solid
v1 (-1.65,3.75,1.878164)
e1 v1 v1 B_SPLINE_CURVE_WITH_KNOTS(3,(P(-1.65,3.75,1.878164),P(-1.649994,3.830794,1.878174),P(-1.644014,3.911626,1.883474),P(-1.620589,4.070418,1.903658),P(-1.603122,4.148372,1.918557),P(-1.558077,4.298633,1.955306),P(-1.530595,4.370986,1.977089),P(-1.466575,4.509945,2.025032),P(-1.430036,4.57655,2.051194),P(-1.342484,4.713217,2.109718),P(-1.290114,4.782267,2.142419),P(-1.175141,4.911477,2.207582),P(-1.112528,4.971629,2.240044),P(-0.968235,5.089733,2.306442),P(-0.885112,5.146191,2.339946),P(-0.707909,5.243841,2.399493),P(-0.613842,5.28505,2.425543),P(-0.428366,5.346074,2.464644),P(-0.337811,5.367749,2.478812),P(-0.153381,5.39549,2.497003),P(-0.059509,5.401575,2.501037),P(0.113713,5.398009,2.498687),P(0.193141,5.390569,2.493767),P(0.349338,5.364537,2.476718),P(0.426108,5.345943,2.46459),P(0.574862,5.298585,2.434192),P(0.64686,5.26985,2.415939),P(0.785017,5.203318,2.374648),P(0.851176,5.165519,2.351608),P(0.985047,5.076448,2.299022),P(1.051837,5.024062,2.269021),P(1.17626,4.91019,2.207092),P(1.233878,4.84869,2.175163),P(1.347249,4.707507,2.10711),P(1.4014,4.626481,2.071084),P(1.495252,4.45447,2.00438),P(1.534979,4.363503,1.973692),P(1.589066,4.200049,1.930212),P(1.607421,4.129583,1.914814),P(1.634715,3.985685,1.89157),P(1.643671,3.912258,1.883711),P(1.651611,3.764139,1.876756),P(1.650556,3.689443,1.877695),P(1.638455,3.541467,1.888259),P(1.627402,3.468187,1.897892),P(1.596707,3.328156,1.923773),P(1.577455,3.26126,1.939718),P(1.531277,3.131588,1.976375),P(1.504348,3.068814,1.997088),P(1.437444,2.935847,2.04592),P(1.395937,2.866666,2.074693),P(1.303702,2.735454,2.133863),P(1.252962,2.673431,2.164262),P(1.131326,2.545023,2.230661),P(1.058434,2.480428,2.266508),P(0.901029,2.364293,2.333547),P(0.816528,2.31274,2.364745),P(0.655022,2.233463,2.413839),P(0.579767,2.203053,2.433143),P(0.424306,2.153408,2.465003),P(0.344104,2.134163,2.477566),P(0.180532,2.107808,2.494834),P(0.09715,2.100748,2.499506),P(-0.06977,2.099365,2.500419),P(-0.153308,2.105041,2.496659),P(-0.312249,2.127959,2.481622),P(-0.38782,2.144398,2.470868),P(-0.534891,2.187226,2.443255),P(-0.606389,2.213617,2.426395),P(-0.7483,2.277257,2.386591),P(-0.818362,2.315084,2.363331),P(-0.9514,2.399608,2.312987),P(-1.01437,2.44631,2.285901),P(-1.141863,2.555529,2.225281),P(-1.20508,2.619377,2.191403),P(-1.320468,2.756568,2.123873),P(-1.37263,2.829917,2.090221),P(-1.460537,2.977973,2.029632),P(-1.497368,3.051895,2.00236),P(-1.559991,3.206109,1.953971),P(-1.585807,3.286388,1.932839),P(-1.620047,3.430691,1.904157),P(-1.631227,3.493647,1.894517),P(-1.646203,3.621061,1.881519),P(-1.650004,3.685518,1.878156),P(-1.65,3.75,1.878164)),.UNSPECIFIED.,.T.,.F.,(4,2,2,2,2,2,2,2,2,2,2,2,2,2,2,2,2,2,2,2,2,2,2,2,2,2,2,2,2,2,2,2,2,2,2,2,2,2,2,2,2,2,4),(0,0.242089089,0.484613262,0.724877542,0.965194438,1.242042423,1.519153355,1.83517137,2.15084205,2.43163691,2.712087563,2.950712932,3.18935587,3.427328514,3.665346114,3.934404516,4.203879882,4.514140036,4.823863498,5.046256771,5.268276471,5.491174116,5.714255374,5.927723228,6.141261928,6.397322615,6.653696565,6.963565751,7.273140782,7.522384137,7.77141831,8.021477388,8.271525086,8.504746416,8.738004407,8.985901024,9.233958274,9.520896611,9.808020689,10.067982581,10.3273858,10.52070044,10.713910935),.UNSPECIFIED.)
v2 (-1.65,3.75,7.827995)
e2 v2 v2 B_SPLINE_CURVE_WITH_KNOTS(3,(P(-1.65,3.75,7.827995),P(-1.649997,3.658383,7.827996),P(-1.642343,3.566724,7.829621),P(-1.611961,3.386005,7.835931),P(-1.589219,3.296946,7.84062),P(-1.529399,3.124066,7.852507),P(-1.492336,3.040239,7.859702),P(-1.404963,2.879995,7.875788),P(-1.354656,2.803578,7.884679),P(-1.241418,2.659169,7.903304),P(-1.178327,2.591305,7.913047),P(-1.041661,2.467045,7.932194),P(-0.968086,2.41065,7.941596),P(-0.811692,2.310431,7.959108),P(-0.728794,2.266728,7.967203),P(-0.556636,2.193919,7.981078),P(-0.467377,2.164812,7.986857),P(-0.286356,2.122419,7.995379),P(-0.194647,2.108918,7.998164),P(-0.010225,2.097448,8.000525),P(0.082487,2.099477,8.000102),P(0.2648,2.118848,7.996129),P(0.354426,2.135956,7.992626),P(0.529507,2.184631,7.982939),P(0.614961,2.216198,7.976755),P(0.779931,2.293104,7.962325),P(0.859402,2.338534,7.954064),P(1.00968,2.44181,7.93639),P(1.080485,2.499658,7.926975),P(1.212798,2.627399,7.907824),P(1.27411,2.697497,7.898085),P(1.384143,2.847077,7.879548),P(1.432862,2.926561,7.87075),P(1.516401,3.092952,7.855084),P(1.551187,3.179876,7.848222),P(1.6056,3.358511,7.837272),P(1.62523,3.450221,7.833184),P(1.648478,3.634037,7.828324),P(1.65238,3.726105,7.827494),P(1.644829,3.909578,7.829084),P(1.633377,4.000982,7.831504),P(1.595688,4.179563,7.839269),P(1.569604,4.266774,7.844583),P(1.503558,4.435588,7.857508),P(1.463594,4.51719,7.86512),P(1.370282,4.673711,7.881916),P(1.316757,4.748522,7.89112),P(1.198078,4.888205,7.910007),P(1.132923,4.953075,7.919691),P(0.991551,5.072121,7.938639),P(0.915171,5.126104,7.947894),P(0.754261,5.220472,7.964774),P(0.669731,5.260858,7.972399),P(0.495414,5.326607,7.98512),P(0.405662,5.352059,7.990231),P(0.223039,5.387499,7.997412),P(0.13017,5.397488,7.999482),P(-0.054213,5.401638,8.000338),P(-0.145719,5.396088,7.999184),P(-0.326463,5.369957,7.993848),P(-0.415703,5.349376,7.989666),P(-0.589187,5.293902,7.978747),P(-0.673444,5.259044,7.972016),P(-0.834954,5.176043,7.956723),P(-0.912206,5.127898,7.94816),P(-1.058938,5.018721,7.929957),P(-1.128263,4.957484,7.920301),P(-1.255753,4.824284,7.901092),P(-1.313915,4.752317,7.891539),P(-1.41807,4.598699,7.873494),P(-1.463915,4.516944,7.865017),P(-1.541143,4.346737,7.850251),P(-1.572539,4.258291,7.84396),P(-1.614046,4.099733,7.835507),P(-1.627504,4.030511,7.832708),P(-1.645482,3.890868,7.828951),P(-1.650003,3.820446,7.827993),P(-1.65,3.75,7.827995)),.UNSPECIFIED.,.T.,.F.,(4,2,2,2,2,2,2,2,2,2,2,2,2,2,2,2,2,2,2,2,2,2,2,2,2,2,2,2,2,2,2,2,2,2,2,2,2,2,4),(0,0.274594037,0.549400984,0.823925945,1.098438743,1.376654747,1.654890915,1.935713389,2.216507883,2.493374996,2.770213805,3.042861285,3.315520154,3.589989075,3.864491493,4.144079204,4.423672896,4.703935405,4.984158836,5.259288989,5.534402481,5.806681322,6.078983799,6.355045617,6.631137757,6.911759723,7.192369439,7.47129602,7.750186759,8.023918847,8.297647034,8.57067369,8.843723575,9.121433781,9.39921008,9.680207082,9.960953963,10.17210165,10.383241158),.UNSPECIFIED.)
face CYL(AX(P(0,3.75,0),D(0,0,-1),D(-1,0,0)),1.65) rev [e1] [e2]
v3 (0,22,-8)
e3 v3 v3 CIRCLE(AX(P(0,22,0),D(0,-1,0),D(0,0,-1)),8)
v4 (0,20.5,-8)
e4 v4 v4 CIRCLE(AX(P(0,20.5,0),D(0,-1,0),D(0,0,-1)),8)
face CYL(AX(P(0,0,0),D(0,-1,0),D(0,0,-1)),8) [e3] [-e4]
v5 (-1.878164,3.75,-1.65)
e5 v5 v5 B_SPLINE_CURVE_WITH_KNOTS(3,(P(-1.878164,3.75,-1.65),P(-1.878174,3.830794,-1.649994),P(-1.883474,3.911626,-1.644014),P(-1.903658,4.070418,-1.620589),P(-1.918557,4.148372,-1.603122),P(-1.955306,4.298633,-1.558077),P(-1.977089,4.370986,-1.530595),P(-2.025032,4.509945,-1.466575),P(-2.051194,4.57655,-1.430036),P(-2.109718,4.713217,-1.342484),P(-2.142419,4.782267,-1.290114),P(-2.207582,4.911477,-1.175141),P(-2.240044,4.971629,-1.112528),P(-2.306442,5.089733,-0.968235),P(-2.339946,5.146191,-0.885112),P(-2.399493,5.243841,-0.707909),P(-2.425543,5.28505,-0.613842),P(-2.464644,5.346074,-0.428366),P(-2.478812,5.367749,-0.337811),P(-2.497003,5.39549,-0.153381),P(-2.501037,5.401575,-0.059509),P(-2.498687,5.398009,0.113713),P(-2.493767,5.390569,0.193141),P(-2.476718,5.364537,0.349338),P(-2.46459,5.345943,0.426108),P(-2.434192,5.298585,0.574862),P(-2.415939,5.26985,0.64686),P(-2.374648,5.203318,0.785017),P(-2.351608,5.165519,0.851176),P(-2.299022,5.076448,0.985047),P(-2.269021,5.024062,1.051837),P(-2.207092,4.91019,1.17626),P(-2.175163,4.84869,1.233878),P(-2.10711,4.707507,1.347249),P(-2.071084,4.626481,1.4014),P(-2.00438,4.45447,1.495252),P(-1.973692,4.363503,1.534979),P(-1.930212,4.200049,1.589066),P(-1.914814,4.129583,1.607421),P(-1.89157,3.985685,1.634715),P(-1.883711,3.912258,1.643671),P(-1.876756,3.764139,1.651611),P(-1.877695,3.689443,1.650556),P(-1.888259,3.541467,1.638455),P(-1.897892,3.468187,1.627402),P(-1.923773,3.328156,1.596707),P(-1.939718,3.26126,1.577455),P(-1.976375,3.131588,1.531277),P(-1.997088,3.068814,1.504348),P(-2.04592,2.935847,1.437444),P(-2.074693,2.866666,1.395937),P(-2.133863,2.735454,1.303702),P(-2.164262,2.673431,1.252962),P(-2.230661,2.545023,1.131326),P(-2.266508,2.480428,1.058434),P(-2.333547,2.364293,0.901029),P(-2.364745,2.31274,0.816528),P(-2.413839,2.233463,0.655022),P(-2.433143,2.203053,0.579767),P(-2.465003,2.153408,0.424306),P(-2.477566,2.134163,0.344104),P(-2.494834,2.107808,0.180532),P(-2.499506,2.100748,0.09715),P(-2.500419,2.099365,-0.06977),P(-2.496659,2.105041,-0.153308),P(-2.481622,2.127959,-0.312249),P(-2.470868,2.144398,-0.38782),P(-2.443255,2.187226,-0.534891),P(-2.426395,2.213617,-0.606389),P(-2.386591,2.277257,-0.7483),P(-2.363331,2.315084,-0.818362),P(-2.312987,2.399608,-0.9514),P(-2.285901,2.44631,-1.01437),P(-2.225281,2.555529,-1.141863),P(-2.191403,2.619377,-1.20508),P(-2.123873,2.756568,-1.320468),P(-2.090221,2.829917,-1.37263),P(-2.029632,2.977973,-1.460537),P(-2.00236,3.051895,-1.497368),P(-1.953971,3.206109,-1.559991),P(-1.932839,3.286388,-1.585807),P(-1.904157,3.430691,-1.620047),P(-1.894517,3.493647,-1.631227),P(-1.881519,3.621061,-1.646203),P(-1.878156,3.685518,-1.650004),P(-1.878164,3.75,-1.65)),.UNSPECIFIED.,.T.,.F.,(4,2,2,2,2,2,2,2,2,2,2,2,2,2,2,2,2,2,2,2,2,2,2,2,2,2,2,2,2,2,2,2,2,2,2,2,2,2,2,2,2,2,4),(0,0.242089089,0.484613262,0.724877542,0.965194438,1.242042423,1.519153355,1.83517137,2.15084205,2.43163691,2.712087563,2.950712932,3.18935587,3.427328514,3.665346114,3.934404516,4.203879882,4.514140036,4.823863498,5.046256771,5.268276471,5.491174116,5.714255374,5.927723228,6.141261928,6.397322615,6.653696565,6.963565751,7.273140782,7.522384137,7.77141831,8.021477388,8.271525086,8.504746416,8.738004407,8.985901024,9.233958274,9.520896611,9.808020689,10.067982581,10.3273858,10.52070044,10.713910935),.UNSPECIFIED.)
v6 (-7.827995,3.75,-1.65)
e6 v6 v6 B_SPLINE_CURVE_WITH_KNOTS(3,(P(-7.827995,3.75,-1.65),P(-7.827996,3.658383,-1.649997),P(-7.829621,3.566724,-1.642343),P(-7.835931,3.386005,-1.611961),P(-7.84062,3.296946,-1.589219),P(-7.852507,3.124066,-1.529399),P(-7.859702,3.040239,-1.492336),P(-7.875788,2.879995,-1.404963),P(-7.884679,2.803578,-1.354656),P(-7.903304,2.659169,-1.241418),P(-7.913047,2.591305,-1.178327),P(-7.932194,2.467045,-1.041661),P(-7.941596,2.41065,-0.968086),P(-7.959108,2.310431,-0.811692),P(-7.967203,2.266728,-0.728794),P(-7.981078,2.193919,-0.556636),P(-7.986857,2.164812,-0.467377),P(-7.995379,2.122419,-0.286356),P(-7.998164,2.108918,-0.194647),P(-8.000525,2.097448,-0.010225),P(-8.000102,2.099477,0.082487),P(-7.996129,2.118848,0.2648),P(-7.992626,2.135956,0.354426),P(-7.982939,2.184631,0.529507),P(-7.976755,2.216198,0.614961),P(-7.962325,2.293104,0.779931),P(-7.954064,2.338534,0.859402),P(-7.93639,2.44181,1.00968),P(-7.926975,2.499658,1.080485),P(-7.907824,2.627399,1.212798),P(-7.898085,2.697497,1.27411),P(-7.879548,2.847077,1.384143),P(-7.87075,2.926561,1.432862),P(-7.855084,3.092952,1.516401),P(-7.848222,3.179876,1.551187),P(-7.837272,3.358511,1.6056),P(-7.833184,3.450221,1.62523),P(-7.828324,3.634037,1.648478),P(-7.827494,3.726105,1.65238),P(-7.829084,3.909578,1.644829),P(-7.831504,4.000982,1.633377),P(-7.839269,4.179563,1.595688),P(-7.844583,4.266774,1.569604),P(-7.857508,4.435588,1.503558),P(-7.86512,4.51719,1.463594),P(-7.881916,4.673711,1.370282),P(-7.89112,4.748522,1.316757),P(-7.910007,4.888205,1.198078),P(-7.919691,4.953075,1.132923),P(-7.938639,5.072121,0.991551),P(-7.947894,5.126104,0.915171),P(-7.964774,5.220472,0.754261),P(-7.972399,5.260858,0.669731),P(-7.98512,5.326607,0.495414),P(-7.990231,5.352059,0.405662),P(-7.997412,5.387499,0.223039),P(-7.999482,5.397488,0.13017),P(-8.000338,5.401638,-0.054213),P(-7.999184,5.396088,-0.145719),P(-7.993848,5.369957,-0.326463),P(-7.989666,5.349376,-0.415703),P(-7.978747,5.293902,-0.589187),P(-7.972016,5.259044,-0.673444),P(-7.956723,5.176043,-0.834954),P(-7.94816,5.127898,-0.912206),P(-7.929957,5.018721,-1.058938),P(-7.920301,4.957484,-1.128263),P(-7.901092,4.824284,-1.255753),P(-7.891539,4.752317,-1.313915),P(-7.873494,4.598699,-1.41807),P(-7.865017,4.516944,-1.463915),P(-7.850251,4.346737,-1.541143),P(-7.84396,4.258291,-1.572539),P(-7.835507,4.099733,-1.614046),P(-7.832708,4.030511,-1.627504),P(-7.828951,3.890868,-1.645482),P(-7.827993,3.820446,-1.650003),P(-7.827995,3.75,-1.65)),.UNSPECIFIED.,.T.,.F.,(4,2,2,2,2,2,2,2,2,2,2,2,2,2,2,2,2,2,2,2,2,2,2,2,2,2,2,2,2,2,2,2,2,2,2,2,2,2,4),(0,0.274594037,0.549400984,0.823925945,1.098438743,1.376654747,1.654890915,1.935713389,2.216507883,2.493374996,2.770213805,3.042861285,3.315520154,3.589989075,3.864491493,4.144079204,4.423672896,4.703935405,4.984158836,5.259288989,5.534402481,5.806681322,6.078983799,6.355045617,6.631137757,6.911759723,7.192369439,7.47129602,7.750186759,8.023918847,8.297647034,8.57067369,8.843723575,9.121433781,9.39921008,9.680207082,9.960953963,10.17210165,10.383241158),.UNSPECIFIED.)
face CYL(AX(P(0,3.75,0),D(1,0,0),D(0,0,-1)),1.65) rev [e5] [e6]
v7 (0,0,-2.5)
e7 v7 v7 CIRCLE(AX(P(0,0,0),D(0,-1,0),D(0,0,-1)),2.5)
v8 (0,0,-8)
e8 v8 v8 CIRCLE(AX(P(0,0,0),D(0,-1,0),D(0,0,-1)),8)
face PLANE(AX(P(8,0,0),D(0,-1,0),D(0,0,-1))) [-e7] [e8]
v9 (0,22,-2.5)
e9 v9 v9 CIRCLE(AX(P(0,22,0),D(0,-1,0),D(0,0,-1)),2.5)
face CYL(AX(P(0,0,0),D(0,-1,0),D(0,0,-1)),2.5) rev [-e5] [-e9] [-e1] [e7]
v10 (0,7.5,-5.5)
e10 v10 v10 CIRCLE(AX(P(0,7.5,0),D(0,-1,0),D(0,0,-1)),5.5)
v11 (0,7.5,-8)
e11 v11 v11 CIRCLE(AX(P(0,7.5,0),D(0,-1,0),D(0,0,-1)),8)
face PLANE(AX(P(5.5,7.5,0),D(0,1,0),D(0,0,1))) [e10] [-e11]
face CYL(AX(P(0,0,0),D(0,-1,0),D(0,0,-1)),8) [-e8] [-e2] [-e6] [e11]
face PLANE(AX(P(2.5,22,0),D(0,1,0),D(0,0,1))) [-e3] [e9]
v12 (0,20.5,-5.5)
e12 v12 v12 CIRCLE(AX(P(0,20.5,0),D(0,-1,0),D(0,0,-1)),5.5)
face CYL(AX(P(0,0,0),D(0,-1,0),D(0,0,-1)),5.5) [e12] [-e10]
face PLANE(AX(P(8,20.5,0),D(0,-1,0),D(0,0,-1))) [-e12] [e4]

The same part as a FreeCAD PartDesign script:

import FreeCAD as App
import Part
import Sketcher

V = App.Vector

doc = App.newDocument("Part")
params = doc.addObject("Spreadsheet::Sheet", "Params")
for row, (alias, value) in enumerate([
    ("sketch1_height", "13 mm"),
    ("sketch1_height2", "22 mm"),
    ("sketch1_width", "2.5 mm"),
    ("sketch1_width2", "5.5 mm"),
    ("sketch1_height3", "7.5 mm"),
    ("revolution_angle", "360 deg"),
    ("sketch2_width", "1.65 mm"),
    ("groove_angle", "360 deg"),
], start=1):
    params.set(f"A{row}", alias)
    params.set(f"B{row}", "=" + value)
    params.setAlias(f"B{row}", alias)

body = doc.addObject("PartDesign::Body", "Body")

# Sketch on XY plane
sketch1 = body.newObject("Sketcher::SketchObject", "Sketch")
sketch1.AttachmentSupport = (doc.getObject("XY_Plane"), [""])
sketch1.MapMode = "FlatFace"
sketch1.addGeometry([
    Part.LineSegment(V(8, 0, 0), V(8, 7.5, 0)),  # 0
    Part.LineSegment(V(8, 7.5, 0), V(5.5, 7.5, 0)),  # 1
    Part.LineSegment(V(5.5, 7.5, 0), V(5.5, 20.5, 0)),  # 2
    Part.LineSegment(V(5.5, 20.5, 0), V(8, 20.5, 0)),  # 3
    Part.LineSegment(V(8, 20.5, 0), V(8, 22, 0)),  # 4
    Part.LineSegment(V(8, 22, 0), V(2.5, 22, 0)),  # 5
    Part.LineSegment(V(2.5, 22, 0), V(2.5, 0, 0)),  # 6
    Part.LineSegment(V(2.5, 0, 0), V(8, 0, 0)),  # 7
], False)
sketch1.addConstraint([
    Sketcher.Constraint("Coincident", 0, 2, 1, 1),
    Sketcher.Constraint("Coincident", 1, 2, 2, 1),
    Sketcher.Constraint("Coincident", 2, 2, 3, 1),
    Sketcher.Constraint("Coincident", 3, 2, 4, 1),
    Sketcher.Constraint("Coincident", 4, 2, 5, 1),
    Sketcher.Constraint("Coincident", 5, 2, 6, 1),
    Sketcher.Constraint("Coincident", 6, 2, 7, 1),
    Sketcher.Constraint("Coincident", 7, 2, 0, 1),
    Sketcher.Constraint("Vertical", 0),
    Sketcher.Constraint("Horizontal", 1),
    Sketcher.Constraint("Vertical", 2),
    Sketcher.Constraint("Horizontal", 3),
    Sketcher.Constraint("Vertical", 4),
    Sketcher.Constraint("Horizontal", 5),
    Sketcher.Constraint("Vertical", 6),
    Sketcher.Constraint("Horizontal", 7),
    Sketcher.Constraint("PointOnObject", 6, 2, -1),
    Sketcher.Constraint("Vertical", 0, 2, 3, 2),
    Sketcher.Constraint("DistanceY", 2, 1, 2, 2, 13.0),
    Sketcher.Constraint("DistanceY", 6, 2, 6, 1, 22.0),
    Sketcher.Constraint("DistanceX", 1, 2, 1, 1, 2.5),
    Sketcher.Constraint("DistanceX", 5, 2, 5, 1, 5.5),
    Sketcher.Constraint("DistanceY", 0, 1, 0, 2, 7.5),
    Sketcher.Constraint("DistanceX", -1, 1, 0, 2, 8.0),
])
sketch1.setExpression("Constraints[18]", "Params.sketch1_height")
sketch1.setExpression("Constraints[19]", "Params.sketch1_height2")
sketch1.setExpression("Constraints[20]", "Params.sketch1_width")
sketch1.setExpression("Constraints[21]", "Params.sketch1_width2")
sketch1.setExpression("Constraints[22]", "Params.sketch1_height3")
revolution = body.newObject("PartDesign::Revolution", "Revolution")
revolution.Profile = sketch1
revolution.ReferenceAxis = (sketch1, ["V_Axis"])
revolution.setExpression("Angle", "Params.revolution_angle")

# Sketch on YZ plane
sketch2 = body.newObject("Sketcher::SketchObject", "Sketch001")
sketch2.AttachmentSupport = (doc.getObject("YZ_Plane"), [""])
sketch2.MapMode = "FlatFace"
sketch2.addGeometry([
    Part.LineSegment(V(3.8, 8, 0), V(3.8, 0, 0)),
    Part.LineSegment(V(3.8, 0, 0), V(5.4, 0, 0)),
    Part.LineSegment(V(5.4, 0, 0), V(5.4, 8, 0)),
    Part.LineSegment(V(5.4, 8, 0), V(3.8, 8, 0)),
], False)
sketch2.addGeometry(Part.LineSegment(V(3.8, 0, 0), V(3.8, 8, 0)), True)  # axis
sketch2.addConstraint([
    Sketcher.Constraint("Coincident", 0, 2, 1, 1),
    Sketcher.Constraint("Coincident", 1, 2, 2, 1),
    Sketcher.Constraint("Coincident", 2, 2, 3, 1),
    Sketcher.Constraint("Coincident", 3, 2, 0, 1),
    Sketcher.Constraint("Vertical", 0),
    Sketcher.Constraint("Horizontal", 1),
    Sketcher.Constraint("Vertical", 2),
    Sketcher.Constraint("Horizontal", 3),
    Sketcher.Constraint("Vertical", 4),
    Sketcher.Constraint("Coincident", 4, 1, 0, 2),
    Sketcher.Constraint("PointOnObject", 0, 2, -1),
    Sketcher.Constraint("Horizontal", 2, 2, 4, 2),
    Sketcher.Constraint("DistanceX", 1, 1, 1, 2, 1.65),
    Sketcher.Constraint("DistanceX", -1, 1, 1, 2, 5.4),
    Sketcher.Constraint("DistanceY", 0, 2, 0, 1, 8.001),
])
sketch2.setExpression("Constraints[12]", "Params.sketch2_width")
groove = body.newObject("PartDesign::Groove", "Groove")
groove.Profile = sketch2
groove.ReferenceAxis = (sketch2, ["Axis0"])
groove.setExpression("Angle", "Params.groove_angle")
doc.recompute()

polarpattern = body.newObject("PartDesign::PolarPattern", "PolarPattern")
polarpattern.Originals = [groove]
polarpattern.Axis = (doc.getObject("Y_Axis"), [""])
polarpattern.Angle = 90
polarpattern.Occurrences = 2
polarpattern.Reversed = True
body.Tip = polarpattern

doc.recompute()
